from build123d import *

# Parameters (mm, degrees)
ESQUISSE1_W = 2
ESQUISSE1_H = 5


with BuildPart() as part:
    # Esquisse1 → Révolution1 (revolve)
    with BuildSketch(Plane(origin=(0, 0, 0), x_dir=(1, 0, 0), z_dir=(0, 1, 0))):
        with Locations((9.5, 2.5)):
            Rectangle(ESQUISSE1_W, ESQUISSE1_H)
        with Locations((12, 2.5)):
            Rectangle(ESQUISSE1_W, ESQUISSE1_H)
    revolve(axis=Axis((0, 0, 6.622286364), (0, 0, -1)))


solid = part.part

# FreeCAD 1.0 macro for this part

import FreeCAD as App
import Part
import Sketcher
from FreeCAD import Vector

doc = App.newDocument("Part")
body = doc.addObject("PartDesign::Body", "Body")
body.AllowCompound = True

sketch1 = body.newObject("Sketcher::SketchObject", "Sketch")
sketch1.AttachmentSupport = (doc.getObject("XZ_Plane"), [""])
sketch1.MapMode = "FlatFace"
sketch1.addGeometry(Part.LineSegment(Vector(8.5, -5, 0), Vector(8.5, 0, 0)), False)
sketch1.addGeometry(Part.LineSegment(Vector(8.5, 0, 0), Vector(10.5, 0, 0)), False)
sketch1.addGeometry(Part.LineSegment(Vector(10.5, 0, 0), Vector(10.5, -5, 0)), False)
sketch1.addGeometry(Part.LineSegment(Vector(10.5, -5, 0), Vector(8.5, -5, 0)), False)
sketch1.addGeometry(Part.LineSegment(Vector(11, -5, 0), Vector(11, 0, 0)), False)
sketch1.addGeometry(Part.LineSegment(Vector(11, 0, 0), Vector(13, 0, 0)), False)
sketch1.addGeometry(Part.LineSegment(Vector(13, 0, 0), Vector(13, -5, 0)), False)
sketch1.addGeometry(Part.LineSegment(Vector(13, -5, 0), Vector(11, -5, 0)), False)
sketch1.addConstraint(Sketcher.Constraint("Coincident", 0, 2, 1, 1))
sketch1.addConstraint(Sketcher.Constraint("Coincident", 1, 2, 2, 1))
sketch1.addConstraint(Sketcher.Constraint("Coincident", 2, 2, 3, 1))
sketch1.addConstraint(Sketcher.Constraint("Coincident", 3, 2, 0, 1))
sketch1.addConstraint(Sketcher.Constraint("Coincident", 4, 2, 5, 1))
sketch1.addConstraint(Sketcher.Constraint("Coincident", 5, 2, 6, 1))
sketch1.addConstraint(Sketcher.Constraint("Coincident", 6, 2, 7, 1))
sketch1.addConstraint(Sketcher.Constraint("Coincident", 7, 2, 4, 1))
sketch1.addConstraint(Sketcher.Constraint("Vertical", 0))
sketch1.addConstraint(Sketcher.Constraint("Horizontal", 1))
sketch1.addConstraint(Sketcher.Constraint("Vertical", 2))
sketch1.addConstraint(Sketcher.Constraint("Horizontal", 3))
sketch1.addConstraint(Sketcher.Constraint("Vertical", 4))
sketch1.addConstraint(Sketcher.Constraint("Horizontal", 5))
sketch1.addConstraint(Sketcher.Constraint("Vertical", 6))
sketch1.addConstraint(Sketcher.Constraint("Horizontal", 7))
sketch1.addConstraint(Sketcher.Constraint("PointOnObject", 0, 2, -1))
sketch1.addConstraint(Sketcher.Constraint("PointOnObject", 4, 2, -1))
sketch1.addConstraint(Sketcher.Constraint("Horizontal", 3, 2, 6, 2))
sketch1.addConstraint(Sketcher.Constraint("Equal", 3, 5))
sketch1.addConstraint(Sketcher.Constraint("DistanceX", 1, 1, 1, 2, 2.0))
sketch1.addConstraint(Sketcher.Constraint("DistanceY", 0, 1, 0, 2, 5.0))
sketch1.addConstraint(Sketcher.Constraint("DistanceX", -1, 1, 4, 2, 11.0))
sketch1.addConstraint(Sketcher.Constraint("DistanceX", -1, 1, 0, 2, 8.5))
revolution = body.newObject("PartDesign::Revolution", "Revolution")
revolution.Profile = sketch1
revolution.ReferenceAxis = (sketch1, ["V_Axis"])
revolution.Angle = 360

doc.recompute()
